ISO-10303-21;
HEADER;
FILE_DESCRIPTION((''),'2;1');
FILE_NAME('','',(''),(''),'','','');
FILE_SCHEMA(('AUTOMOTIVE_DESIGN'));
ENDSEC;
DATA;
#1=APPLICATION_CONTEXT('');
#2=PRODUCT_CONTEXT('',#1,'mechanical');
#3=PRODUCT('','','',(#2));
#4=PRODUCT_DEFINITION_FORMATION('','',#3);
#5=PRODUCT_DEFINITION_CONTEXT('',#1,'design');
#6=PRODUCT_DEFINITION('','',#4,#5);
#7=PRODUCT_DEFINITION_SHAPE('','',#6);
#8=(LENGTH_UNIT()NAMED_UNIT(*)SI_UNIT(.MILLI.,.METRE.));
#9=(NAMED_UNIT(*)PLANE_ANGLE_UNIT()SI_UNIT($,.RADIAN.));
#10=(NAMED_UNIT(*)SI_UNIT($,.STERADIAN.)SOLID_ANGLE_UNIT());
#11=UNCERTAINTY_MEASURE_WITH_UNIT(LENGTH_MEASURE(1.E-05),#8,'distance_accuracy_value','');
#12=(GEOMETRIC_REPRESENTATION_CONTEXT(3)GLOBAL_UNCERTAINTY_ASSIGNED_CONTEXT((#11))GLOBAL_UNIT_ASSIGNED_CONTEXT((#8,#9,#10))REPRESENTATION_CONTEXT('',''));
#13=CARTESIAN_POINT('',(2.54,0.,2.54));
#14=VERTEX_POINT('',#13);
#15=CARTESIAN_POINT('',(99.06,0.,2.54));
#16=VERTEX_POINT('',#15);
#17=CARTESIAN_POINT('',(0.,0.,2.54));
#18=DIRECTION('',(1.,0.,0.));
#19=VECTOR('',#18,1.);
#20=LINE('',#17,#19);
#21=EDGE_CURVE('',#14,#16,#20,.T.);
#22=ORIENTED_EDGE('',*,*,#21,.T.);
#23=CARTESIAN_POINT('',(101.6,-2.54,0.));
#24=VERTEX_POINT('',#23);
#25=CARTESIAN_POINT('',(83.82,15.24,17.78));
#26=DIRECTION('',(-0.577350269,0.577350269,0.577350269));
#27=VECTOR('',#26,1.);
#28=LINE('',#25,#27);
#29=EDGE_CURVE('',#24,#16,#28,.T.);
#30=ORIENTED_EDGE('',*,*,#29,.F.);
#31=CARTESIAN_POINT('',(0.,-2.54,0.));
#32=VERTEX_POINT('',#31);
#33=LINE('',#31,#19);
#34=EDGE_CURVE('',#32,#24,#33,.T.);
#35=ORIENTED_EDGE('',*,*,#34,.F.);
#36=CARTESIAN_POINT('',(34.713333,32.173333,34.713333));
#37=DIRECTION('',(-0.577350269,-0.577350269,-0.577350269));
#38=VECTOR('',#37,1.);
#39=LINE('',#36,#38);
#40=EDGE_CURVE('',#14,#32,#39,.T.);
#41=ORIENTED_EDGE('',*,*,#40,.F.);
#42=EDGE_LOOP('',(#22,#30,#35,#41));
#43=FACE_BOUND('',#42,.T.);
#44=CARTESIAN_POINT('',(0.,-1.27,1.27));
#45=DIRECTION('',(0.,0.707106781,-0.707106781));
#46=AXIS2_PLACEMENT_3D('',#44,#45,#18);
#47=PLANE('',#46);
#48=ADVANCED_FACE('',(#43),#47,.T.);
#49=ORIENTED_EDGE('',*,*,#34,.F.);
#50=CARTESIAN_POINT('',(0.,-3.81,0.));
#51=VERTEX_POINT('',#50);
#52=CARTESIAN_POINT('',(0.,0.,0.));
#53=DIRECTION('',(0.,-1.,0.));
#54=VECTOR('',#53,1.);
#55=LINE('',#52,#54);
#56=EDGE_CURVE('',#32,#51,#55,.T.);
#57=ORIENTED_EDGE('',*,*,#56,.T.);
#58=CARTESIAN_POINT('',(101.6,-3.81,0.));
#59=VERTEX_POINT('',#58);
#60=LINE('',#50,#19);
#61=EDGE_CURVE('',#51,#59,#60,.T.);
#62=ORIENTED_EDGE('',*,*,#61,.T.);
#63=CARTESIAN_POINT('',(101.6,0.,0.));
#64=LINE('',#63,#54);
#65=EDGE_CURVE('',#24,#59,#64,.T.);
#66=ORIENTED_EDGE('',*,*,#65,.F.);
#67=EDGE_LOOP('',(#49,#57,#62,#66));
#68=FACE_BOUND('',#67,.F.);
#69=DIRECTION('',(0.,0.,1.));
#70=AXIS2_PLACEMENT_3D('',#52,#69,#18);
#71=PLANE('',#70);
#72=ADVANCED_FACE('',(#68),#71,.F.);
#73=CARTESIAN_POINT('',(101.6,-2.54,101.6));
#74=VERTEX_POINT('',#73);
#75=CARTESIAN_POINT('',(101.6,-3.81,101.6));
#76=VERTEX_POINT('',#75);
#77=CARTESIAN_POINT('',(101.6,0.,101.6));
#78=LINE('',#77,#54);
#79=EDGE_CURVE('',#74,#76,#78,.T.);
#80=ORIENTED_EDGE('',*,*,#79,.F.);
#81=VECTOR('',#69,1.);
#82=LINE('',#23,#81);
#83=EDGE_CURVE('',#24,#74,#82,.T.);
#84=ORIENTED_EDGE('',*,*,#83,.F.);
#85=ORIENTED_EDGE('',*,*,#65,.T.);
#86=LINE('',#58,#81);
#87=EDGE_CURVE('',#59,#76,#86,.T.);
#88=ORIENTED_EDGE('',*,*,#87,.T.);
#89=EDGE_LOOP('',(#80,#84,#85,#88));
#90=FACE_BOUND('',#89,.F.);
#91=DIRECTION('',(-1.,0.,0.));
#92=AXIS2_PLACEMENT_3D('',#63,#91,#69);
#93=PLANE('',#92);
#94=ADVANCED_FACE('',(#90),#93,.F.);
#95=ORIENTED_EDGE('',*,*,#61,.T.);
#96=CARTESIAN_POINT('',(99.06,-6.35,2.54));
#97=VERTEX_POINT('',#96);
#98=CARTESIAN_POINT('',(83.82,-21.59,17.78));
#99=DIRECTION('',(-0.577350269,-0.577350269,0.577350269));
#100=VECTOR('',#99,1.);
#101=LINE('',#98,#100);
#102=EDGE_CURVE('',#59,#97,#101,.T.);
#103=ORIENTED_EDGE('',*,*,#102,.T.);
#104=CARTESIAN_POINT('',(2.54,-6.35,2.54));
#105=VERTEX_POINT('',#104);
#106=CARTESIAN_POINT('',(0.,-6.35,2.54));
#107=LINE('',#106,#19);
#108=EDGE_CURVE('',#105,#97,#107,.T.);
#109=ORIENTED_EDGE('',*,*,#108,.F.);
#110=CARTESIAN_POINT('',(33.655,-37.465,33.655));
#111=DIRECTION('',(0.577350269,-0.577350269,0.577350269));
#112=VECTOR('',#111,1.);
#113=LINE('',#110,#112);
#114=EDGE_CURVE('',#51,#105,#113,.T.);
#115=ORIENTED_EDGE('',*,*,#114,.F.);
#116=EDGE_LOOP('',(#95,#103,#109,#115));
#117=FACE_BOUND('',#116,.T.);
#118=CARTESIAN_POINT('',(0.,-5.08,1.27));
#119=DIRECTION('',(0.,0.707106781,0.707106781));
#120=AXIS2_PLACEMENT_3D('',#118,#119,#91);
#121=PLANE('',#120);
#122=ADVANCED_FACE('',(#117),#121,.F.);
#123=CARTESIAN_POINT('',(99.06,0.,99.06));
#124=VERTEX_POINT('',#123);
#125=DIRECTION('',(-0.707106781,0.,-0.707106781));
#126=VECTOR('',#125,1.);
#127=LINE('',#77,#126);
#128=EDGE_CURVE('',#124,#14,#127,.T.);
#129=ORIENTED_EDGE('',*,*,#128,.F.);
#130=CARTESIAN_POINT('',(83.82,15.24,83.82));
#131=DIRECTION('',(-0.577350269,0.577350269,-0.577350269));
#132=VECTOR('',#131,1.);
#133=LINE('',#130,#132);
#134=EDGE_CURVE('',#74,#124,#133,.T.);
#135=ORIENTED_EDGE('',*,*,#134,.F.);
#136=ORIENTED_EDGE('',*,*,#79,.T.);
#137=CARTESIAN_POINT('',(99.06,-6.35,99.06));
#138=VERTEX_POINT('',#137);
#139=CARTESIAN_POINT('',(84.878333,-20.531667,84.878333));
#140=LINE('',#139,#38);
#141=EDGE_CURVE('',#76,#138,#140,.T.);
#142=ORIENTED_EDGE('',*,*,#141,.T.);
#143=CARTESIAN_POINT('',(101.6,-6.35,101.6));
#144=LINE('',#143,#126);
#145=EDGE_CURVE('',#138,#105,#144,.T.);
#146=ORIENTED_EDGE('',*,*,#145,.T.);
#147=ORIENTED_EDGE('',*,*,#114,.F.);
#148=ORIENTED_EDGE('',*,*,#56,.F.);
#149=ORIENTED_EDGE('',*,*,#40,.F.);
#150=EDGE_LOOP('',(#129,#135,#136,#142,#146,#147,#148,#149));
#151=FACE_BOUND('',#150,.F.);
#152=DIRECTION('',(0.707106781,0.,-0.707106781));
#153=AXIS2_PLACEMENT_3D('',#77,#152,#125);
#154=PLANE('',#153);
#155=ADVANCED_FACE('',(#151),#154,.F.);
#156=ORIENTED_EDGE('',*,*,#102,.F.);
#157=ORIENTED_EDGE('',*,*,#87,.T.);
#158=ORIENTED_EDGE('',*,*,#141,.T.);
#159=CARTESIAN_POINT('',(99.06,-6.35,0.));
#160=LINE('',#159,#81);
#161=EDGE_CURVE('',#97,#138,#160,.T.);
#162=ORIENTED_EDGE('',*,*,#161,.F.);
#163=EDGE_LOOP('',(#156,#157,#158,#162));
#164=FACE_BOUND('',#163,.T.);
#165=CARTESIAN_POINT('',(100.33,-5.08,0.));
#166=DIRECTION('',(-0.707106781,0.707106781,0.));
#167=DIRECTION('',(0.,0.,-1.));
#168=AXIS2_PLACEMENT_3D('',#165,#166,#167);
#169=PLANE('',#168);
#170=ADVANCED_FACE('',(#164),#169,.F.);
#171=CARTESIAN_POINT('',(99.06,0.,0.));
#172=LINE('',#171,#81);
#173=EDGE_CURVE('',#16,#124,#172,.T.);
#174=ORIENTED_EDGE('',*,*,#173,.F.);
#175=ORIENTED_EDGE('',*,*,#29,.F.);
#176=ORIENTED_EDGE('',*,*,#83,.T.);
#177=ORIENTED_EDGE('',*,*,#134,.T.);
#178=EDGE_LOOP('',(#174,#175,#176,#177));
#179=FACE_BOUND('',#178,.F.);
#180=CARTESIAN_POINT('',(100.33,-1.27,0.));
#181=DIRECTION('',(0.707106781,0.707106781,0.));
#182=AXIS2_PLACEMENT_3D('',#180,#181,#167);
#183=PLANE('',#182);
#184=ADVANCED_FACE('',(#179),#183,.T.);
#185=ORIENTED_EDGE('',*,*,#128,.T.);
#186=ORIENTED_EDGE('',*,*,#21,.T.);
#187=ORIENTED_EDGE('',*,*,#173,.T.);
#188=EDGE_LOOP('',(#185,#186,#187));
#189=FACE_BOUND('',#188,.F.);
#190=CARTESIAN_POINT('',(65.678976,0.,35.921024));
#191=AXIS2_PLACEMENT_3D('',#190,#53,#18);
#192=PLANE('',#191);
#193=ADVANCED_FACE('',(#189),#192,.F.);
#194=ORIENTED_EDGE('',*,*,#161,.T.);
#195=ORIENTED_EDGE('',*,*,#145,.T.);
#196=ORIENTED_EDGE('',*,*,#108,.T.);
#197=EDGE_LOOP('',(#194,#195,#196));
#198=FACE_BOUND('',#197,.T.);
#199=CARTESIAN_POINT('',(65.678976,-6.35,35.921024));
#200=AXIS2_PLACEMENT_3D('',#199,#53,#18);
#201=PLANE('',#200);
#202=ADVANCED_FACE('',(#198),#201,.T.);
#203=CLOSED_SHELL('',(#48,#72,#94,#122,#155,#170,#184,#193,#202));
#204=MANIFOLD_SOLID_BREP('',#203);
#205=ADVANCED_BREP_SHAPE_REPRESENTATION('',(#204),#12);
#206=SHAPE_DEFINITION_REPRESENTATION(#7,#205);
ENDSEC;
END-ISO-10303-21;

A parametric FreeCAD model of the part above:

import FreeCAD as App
import Part
import Sketcher
Q = App.Units.Quantity


def edges_at(feature, points):
    """Names of the edges that pass closest to the given points."""
    edges = feature.Shape.Edges
    near = lambda p: min(range(len(edges)), key=lambda i: edges[i].distToShape(Part.Vertex(*p))[0])
    return sorted({f"Edge{near(p) + 1}" for p in points})


def add_polygon(sketch, points):
    """Adds a closed chain of lines whose ends are joined by coincident constraints."""
    first, n = sketch.GeometryCount, len(points)
    for a, b in zip(points, points[1:] + points[:1]):
        sketch.addGeometry(Part.LineSegment(App.Vector(*a, 0), App.Vector(*b, 0)), False)
    for i in range(n):
        sketch.addConstraint(Sketcher.Constraint("Coincident", first + i, 2, first + (i + 1) % n, 1))

doc = App.newDocument("Part")
params = doc.addObject("Spreadsheet::Sheet", "Params")
for row, (alias, value) in enumerate([
    ("sketch1_width", "4 in"),
    ("pad1_length", "0.25 in"),
    ("chamfer_size", "0.1 in"),
    ("chamfer2_size", "0.1 in"),
], start=1):
    params.set(f"A{row}", alias)
    params.set(f"B{row}", "=" + value)
    params.setAlias(f"B{row}", alias)

body = doc.addObject("PartDesign::Body", "Body")

sketch1 = doc.addObject("Sketcher::SketchObject", "Sketch")
body.addObject(sketch1)
sketch1.AttachmentSupport = (doc.XZ_Plane, [""])
sketch1.MapMode = "FlatFace"
add_polygon(sketch1, [(101.6, 101.6), (0, 0), (101.6, 0)])
sketch1.addConstraint([
    Sketcher.Constraint("Horizontal", 1),
    Sketcher.Constraint("Vertical", 2),
    Sketcher.Constraint("Coincident", 0, 2, -1, 1),
    Sketcher.Constraint("Equal", 1, 2),
    Sketcher.Constraint("DistanceX", 1, 1, 1, 2, Q("4 in")),
])
sketch1.setExpression("Constraints[7]", "Params.sketch1_width")
pad1 = doc.addObject("PartDesign::Pad", "Pad")
body.addObject(pad1)
pad1.Profile = sketch1
pad1.setExpression("Length", "Params.pad1_length")
doc.recompute()

chamfer = doc.addObject("PartDesign::Chamfer", "Chamfer")
body.addObject(chamfer)
chamfer.Base = (pad1, edges_at(pad1, [(101.6, -6.35, 50.8), (50.8, -6.35, 0)]))
chamfer.setExpression("Size", "Params.chamfer_size")
doc.recompute()

chamfer2 = doc.addObject("PartDesign::Chamfer", "Chamfer001")
body.addObject(chamfer2)
chamfer2.Base = (chamfer, edges_at(chamfer, [(101.6, 0, 50.8), (50.8, 0, 0)]))
chamfer2.setExpression("Size", "Params.chamfer2_size")

doc.recompute()
